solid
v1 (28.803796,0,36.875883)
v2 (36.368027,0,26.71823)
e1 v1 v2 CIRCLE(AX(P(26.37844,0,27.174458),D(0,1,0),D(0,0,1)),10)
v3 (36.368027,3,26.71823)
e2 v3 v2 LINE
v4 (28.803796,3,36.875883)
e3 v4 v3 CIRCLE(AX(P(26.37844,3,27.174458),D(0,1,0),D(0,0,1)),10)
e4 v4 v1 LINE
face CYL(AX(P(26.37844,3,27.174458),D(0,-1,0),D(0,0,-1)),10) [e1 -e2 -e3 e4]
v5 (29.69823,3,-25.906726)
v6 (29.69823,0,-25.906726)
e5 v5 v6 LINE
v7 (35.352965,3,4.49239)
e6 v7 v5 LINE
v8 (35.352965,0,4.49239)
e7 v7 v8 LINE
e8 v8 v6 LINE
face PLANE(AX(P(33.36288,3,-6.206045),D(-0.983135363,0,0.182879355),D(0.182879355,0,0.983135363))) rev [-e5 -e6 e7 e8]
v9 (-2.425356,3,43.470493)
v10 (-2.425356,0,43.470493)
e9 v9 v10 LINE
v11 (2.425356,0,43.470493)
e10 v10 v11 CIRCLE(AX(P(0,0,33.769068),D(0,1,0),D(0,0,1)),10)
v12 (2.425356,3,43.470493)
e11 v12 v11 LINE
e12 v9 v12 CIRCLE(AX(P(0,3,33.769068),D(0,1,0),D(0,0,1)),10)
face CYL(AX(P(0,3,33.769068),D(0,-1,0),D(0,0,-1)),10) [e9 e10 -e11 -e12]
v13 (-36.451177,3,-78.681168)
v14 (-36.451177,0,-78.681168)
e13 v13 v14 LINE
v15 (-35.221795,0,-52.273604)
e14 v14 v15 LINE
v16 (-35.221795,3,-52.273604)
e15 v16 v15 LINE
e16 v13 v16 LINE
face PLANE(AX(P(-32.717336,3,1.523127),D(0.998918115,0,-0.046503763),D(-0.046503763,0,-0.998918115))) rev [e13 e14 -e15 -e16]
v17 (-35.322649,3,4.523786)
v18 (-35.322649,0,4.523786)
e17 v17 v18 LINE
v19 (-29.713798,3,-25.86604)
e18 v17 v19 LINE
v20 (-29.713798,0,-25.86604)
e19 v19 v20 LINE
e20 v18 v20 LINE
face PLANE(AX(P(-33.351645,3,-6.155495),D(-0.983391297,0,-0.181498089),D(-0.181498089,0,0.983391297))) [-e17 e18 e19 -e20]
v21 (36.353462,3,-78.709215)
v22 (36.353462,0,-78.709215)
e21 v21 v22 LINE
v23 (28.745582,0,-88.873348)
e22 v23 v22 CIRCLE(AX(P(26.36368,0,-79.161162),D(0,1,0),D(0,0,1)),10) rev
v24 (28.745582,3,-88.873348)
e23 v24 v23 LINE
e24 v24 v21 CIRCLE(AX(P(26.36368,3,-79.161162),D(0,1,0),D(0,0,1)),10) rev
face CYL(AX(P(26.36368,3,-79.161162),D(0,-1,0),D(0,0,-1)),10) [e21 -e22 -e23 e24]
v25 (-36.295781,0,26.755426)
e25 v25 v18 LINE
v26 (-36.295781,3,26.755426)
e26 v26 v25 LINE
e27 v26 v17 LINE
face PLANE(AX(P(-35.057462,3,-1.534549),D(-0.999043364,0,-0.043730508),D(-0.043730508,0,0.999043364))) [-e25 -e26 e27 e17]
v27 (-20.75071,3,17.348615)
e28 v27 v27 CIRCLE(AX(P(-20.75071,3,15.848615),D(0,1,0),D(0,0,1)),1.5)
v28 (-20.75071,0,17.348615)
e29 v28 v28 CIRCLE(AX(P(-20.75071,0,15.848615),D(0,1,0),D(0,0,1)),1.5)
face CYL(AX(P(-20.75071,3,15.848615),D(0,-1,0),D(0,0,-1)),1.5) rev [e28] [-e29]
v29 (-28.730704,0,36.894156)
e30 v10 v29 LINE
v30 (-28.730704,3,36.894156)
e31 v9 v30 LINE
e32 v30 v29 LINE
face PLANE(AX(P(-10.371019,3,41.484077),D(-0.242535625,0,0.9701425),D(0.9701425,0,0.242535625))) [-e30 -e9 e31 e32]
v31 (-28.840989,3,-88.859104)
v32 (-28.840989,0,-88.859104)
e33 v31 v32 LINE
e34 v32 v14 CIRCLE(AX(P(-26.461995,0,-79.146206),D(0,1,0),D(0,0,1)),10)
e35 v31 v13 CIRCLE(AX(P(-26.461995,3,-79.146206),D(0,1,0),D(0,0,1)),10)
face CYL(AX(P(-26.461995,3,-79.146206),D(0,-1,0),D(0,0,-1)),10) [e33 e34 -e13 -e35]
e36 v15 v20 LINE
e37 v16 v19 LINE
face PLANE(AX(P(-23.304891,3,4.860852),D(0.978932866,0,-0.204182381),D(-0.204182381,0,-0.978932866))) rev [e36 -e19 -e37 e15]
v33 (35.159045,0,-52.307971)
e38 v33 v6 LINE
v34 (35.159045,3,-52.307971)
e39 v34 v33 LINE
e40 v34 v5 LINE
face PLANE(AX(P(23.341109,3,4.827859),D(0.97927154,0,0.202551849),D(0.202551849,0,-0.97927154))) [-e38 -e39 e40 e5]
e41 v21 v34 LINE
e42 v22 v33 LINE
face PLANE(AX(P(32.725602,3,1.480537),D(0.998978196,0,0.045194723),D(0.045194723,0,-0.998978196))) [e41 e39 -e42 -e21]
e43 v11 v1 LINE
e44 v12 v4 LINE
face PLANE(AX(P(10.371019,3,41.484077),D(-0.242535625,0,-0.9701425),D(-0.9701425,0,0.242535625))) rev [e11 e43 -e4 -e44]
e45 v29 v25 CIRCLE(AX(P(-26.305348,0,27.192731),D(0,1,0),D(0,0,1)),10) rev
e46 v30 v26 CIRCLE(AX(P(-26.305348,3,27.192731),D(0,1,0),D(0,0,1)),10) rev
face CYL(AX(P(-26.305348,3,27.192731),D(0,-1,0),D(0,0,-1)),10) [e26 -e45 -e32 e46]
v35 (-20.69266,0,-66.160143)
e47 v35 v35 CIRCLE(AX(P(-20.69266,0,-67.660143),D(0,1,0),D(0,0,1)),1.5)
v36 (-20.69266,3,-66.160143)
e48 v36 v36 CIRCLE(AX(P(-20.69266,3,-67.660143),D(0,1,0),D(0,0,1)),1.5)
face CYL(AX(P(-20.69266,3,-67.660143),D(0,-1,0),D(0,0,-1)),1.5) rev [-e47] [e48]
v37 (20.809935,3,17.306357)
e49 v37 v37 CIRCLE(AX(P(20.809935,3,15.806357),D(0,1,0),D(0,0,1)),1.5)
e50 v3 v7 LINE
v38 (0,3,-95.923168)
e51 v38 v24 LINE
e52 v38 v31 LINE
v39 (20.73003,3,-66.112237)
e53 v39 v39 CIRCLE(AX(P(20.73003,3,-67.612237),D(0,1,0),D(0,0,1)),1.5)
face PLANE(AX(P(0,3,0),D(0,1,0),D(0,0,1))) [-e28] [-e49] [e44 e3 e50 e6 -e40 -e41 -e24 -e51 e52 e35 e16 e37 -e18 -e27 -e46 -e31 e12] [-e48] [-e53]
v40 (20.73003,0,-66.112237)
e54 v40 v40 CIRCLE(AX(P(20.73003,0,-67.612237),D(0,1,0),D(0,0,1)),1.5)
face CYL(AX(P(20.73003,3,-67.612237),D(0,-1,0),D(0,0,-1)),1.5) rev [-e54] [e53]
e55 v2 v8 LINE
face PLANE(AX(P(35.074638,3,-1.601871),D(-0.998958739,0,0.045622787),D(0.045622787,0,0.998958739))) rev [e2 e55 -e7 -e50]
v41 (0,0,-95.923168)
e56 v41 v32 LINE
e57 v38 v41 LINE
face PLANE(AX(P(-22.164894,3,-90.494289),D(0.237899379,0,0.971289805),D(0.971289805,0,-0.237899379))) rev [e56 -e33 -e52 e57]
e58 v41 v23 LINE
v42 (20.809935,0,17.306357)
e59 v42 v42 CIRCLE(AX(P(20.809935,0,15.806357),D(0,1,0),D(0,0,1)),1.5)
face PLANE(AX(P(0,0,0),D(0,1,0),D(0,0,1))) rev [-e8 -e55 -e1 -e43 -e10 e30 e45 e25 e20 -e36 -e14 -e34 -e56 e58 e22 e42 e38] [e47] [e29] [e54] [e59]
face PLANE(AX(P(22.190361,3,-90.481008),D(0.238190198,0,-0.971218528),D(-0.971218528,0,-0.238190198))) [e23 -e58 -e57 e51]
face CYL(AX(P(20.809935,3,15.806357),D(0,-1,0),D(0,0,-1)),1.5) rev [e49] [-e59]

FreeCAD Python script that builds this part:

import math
import FreeCAD as App
import Part
import Sketcher
from FreeCAD import Vector
Q = App.Units.Quantity

doc = App.newDocument("Part")
body = doc.addObject("PartDesign::Body", "Body")

# Sketch on XZ plane
sketch1 = body.newObject("Sketcher::SketchObject", "Sketch")
sketch1.AttachmentSupport = (doc.getObject("XZ_Plane"), [""])
sketch1.MapMode = "FlatFace"
sketch1.addGeometry([
    Part.LineSegment(Vector(-29.7, -25.9, 0), Vector(-35.3, 4.5, 0)),  # 0
    Part.LineSegment(Vector(-35.3, 4.5, 0), Vector(-36.3, 26.8, 0)),  # 1
    Part.ArcOfCircle(Part.Circle(Vector(-26.3, 27.2, 0), Vector(0, 0, 1), 10), math.radians(104), math.radians(183)),  # 2
    Part.LineSegment(Vector(-28.7, 36.9, 0), Vector(-2.4, 43.5, 0)),  # 3
    Part.ArcOfCircle(Part.Circle(Vector(0, 33.8, 0), Vector(0, 0, 1), 10), math.radians(76), math.radians(104)),  # 4
    Part.LineSegment(Vector(2.4, 43.5, 0), Vector(28.8, 36.9, 0)),  # 5
    Part.ArcOfCircle(Part.Circle(Vector(26.4, 27.2, 0), Vector(0, 0, 1), 10), math.radians(-3), math.radians(76)),  # 6
    Part.LineSegment(Vector(36.4, 26.7, 0), Vector(35.4, 4.5, 0)),  # 7
    Part.LineSegment(Vector(35.4, 4.5, 0), Vector(29.7, -25.9, 0)),  # 8
    Part.LineSegment(Vector(29.7, -25.9, 0), Vector(35.2, -52.3, 0)),  # 9
    Part.LineSegment(Vector(35.2, -52.3, 0), Vector(36.4, -78.7, 0)),  # 10
    Part.ArcOfCircle(Part.Circle(Vector(26.4, -79.2, 0), Vector(0, 0, 1), 10), math.radians(-76), math.radians(3)),  # 11
    Part.LineSegment(Vector(28.7, -88.9, 0), Vector(0, -95.9, 0)),  # 12
    Part.LineSegment(Vector(0, -95.9, 0), Vector(-28.8, -88.9, 0)),  # 13
    Part.ArcOfCircle(Part.Circle(Vector(-26.5, -79.1, 0), Vector(0, 0, 1), 10), math.radians(177), math.radians(256)),  # 14
    Part.LineSegment(Vector(-36.5, -78.7, 0), Vector(-35.2, -52.3, 0)),  # 15
    Part.LineSegment(Vector(-35.2, -52.3, 0), Vector(-29.7, -25.9, 0)),  # 16
    Part.Circle(Vector(20.8, 15.8, 0), Vector(0, 0, 1), 1.5),  # 17
    Part.Circle(Vector(-20.8, 15.8, 0), Vector(0, 0, 1), 1.5),  # 18
    Part.Circle(Vector(20.7, -67.6, 0), Vector(0, 0, 1), 1.5),  # 19
    Part.Circle(Vector(-20.7, -67.7, 0), Vector(0, 0, 1), 1.5),  # 20
], False)
sketch1.addConstraint([
    Sketcher.Constraint("Coincident", 0, 2, 1, 1),
    Sketcher.Constraint("Tangent", 1, 2, 2, 2),
    Sketcher.Constraint("Tangent", 2, 1, 3, 1),
    Sketcher.Constraint("Tangent", 3, 2, 4, 2),
    Sketcher.Constraint("Tangent", 4, 1, 5, 1),
    Sketcher.Constraint("Tangent", 5, 2, 6, 2),
    Sketcher.Constraint("Tangent", 6, 1, 7, 1),
    Sketcher.Constraint("Coincident", 7, 2, 8, 1),
    Sketcher.Constraint("Coincident", 8, 2, 9, 1),
    Sketcher.Constraint("Coincident", 9, 2, 10, 1),
    Sketcher.Constraint("Tangent", 10, 2, 11, 2),
    Sketcher.Constraint("Tangent", 11, 1, 12, 1),
    Sketcher.Constraint("Coincident", 12, 2, 13, 1),
    Sketcher.Constraint("Tangent", 13, 2, 14, 2),
    Sketcher.Constraint("Tangent", 14, 1, 15, 1),
    Sketcher.Constraint("Coincident", 15, 2, 16, 1),
    Sketcher.Constraint("Coincident", 16, 2, 0, 1),
    Sketcher.Constraint("Equal", 2, 4),
    Sketcher.Constraint("Equal", 4, 6),
    Sketcher.Constraint("Equal", 6, 11),
    Sketcher.Constraint("Equal", 11, 14),
    Sketcher.Constraint("Equal", 17, 18),
    Sketcher.Constraint("Equal", 18, 19),
    Sketcher.Constraint("Equal", 19, 20),
    Sketcher.Constraint("Symmetric", 3, 2, 4, 1, -2),
    Sketcher.Constraint("PointOnObject", 12, 2, -2),
    Sketcher.Constraint("Diameter", 17, Q("3 mm")),
    Sketcher.Constraint("Radius", 2, Q("10 mm")),
    Sketcher.Constraint("DistanceY", 12, 2, 14, 1, Q("17.242 mm")),
    Sketcher.Constraint("DistanceX", 16, 2, -1, 1, Q("29.713798 mm")),
    Sketcher.Constraint("DistanceY", 17, 3, 6, 3, Q("11.368101 mm")),
    Sketcher.Constraint("DistanceY", 20, 3, 17, 3, Q("83.466501 mm")),
    Sketcher.Constraint("DistanceX", 0, 2, 2, 3, Q("9.017302 mm")),
    Sketcher.Constraint("DistanceX", 19, 3, 8, 2, Q("8.9682 mm")),
    Sketcher.Constraint("DistanceX", 11, 3, 11, 1, Q("2.381902 mm")),
    Sketcher.Constraint("DistanceY", 13, 2, 14, 3, Q("9.712898 mm")),
    Sketcher.Constraint("DistanceX", 15, 2, 14, 3, Q("8.7598 mm")),
    Sketcher.Constraint("DistanceY", 14, 3, 15, 2, Q("26.872602 mm")),
    Sketcher.Constraint("Distance", 1, Q("22.252928 mm")),
    Sketcher.Constraint("Distance", 3, Q("27.114932 mm")),
    Sketcher.Constraint("Distance", 8, Q("30.920581 mm")),
    Sketcher.Constraint("Distance", 10, Q("26.428249 mm")),
    Sketcher.Constraint("Distance", 12, Q("29.59744 mm")),
    Sketcher.Constraint("Distance", 16, Q("26.975869 mm")),
    Sketcher.Constraint("DistanceY", -1, 1, 2, 3, Q("27.192731 mm")),
    Sketcher.Constraint("DistanceY", -1, 1, 4, 3, Q("33.769068 mm")),
    Sketcher.Constraint("DistanceX", -1, 1, 6, 3, Q("26.37844 mm")),
    Sketcher.Constraint("DistanceX", 18, 3, -1, 1, Q("20.75071 mm")),
    Sketcher.Constraint("DistanceX", -1, 1, 19, 3, Q("20.73003 mm")),
    Sketcher.Constraint("DistanceX", 20, 3, -1, 1, Q("20.69266 mm")),
    Sketcher.Constraint("DistanceY", -1, 1, 6, 1, Q("26.71823 mm")),
    Sketcher.Constraint("DistanceY", -1, 1, 7, 2, Q("4.49239 mm")),
    Sketcher.Constraint("DistanceY", 9, 2, -1, 1, Q("52.307971 mm")),
    Sketcher.Constraint("DistanceY", 14, 1, -1, 1, Q("78.681168 mm")),
    Sketcher.Constraint("DistanceX", 14, 3, 17, 3, Q("47.27193 mm")),
    Sketcher.Constraint("DistanceY", 14, 3, 18, 3, Q("94.994821 mm")),
    Sketcher.Constraint("DistanceY", 14, 3, 19, 3, Q("11.533968 mm")),
])
pad1 = body.newObject("PartDesign::Pad", "Pad")
pad1.Profile = sketch1
pad1.Length = 3
pad1.Reversed = True

doc.recompute()
